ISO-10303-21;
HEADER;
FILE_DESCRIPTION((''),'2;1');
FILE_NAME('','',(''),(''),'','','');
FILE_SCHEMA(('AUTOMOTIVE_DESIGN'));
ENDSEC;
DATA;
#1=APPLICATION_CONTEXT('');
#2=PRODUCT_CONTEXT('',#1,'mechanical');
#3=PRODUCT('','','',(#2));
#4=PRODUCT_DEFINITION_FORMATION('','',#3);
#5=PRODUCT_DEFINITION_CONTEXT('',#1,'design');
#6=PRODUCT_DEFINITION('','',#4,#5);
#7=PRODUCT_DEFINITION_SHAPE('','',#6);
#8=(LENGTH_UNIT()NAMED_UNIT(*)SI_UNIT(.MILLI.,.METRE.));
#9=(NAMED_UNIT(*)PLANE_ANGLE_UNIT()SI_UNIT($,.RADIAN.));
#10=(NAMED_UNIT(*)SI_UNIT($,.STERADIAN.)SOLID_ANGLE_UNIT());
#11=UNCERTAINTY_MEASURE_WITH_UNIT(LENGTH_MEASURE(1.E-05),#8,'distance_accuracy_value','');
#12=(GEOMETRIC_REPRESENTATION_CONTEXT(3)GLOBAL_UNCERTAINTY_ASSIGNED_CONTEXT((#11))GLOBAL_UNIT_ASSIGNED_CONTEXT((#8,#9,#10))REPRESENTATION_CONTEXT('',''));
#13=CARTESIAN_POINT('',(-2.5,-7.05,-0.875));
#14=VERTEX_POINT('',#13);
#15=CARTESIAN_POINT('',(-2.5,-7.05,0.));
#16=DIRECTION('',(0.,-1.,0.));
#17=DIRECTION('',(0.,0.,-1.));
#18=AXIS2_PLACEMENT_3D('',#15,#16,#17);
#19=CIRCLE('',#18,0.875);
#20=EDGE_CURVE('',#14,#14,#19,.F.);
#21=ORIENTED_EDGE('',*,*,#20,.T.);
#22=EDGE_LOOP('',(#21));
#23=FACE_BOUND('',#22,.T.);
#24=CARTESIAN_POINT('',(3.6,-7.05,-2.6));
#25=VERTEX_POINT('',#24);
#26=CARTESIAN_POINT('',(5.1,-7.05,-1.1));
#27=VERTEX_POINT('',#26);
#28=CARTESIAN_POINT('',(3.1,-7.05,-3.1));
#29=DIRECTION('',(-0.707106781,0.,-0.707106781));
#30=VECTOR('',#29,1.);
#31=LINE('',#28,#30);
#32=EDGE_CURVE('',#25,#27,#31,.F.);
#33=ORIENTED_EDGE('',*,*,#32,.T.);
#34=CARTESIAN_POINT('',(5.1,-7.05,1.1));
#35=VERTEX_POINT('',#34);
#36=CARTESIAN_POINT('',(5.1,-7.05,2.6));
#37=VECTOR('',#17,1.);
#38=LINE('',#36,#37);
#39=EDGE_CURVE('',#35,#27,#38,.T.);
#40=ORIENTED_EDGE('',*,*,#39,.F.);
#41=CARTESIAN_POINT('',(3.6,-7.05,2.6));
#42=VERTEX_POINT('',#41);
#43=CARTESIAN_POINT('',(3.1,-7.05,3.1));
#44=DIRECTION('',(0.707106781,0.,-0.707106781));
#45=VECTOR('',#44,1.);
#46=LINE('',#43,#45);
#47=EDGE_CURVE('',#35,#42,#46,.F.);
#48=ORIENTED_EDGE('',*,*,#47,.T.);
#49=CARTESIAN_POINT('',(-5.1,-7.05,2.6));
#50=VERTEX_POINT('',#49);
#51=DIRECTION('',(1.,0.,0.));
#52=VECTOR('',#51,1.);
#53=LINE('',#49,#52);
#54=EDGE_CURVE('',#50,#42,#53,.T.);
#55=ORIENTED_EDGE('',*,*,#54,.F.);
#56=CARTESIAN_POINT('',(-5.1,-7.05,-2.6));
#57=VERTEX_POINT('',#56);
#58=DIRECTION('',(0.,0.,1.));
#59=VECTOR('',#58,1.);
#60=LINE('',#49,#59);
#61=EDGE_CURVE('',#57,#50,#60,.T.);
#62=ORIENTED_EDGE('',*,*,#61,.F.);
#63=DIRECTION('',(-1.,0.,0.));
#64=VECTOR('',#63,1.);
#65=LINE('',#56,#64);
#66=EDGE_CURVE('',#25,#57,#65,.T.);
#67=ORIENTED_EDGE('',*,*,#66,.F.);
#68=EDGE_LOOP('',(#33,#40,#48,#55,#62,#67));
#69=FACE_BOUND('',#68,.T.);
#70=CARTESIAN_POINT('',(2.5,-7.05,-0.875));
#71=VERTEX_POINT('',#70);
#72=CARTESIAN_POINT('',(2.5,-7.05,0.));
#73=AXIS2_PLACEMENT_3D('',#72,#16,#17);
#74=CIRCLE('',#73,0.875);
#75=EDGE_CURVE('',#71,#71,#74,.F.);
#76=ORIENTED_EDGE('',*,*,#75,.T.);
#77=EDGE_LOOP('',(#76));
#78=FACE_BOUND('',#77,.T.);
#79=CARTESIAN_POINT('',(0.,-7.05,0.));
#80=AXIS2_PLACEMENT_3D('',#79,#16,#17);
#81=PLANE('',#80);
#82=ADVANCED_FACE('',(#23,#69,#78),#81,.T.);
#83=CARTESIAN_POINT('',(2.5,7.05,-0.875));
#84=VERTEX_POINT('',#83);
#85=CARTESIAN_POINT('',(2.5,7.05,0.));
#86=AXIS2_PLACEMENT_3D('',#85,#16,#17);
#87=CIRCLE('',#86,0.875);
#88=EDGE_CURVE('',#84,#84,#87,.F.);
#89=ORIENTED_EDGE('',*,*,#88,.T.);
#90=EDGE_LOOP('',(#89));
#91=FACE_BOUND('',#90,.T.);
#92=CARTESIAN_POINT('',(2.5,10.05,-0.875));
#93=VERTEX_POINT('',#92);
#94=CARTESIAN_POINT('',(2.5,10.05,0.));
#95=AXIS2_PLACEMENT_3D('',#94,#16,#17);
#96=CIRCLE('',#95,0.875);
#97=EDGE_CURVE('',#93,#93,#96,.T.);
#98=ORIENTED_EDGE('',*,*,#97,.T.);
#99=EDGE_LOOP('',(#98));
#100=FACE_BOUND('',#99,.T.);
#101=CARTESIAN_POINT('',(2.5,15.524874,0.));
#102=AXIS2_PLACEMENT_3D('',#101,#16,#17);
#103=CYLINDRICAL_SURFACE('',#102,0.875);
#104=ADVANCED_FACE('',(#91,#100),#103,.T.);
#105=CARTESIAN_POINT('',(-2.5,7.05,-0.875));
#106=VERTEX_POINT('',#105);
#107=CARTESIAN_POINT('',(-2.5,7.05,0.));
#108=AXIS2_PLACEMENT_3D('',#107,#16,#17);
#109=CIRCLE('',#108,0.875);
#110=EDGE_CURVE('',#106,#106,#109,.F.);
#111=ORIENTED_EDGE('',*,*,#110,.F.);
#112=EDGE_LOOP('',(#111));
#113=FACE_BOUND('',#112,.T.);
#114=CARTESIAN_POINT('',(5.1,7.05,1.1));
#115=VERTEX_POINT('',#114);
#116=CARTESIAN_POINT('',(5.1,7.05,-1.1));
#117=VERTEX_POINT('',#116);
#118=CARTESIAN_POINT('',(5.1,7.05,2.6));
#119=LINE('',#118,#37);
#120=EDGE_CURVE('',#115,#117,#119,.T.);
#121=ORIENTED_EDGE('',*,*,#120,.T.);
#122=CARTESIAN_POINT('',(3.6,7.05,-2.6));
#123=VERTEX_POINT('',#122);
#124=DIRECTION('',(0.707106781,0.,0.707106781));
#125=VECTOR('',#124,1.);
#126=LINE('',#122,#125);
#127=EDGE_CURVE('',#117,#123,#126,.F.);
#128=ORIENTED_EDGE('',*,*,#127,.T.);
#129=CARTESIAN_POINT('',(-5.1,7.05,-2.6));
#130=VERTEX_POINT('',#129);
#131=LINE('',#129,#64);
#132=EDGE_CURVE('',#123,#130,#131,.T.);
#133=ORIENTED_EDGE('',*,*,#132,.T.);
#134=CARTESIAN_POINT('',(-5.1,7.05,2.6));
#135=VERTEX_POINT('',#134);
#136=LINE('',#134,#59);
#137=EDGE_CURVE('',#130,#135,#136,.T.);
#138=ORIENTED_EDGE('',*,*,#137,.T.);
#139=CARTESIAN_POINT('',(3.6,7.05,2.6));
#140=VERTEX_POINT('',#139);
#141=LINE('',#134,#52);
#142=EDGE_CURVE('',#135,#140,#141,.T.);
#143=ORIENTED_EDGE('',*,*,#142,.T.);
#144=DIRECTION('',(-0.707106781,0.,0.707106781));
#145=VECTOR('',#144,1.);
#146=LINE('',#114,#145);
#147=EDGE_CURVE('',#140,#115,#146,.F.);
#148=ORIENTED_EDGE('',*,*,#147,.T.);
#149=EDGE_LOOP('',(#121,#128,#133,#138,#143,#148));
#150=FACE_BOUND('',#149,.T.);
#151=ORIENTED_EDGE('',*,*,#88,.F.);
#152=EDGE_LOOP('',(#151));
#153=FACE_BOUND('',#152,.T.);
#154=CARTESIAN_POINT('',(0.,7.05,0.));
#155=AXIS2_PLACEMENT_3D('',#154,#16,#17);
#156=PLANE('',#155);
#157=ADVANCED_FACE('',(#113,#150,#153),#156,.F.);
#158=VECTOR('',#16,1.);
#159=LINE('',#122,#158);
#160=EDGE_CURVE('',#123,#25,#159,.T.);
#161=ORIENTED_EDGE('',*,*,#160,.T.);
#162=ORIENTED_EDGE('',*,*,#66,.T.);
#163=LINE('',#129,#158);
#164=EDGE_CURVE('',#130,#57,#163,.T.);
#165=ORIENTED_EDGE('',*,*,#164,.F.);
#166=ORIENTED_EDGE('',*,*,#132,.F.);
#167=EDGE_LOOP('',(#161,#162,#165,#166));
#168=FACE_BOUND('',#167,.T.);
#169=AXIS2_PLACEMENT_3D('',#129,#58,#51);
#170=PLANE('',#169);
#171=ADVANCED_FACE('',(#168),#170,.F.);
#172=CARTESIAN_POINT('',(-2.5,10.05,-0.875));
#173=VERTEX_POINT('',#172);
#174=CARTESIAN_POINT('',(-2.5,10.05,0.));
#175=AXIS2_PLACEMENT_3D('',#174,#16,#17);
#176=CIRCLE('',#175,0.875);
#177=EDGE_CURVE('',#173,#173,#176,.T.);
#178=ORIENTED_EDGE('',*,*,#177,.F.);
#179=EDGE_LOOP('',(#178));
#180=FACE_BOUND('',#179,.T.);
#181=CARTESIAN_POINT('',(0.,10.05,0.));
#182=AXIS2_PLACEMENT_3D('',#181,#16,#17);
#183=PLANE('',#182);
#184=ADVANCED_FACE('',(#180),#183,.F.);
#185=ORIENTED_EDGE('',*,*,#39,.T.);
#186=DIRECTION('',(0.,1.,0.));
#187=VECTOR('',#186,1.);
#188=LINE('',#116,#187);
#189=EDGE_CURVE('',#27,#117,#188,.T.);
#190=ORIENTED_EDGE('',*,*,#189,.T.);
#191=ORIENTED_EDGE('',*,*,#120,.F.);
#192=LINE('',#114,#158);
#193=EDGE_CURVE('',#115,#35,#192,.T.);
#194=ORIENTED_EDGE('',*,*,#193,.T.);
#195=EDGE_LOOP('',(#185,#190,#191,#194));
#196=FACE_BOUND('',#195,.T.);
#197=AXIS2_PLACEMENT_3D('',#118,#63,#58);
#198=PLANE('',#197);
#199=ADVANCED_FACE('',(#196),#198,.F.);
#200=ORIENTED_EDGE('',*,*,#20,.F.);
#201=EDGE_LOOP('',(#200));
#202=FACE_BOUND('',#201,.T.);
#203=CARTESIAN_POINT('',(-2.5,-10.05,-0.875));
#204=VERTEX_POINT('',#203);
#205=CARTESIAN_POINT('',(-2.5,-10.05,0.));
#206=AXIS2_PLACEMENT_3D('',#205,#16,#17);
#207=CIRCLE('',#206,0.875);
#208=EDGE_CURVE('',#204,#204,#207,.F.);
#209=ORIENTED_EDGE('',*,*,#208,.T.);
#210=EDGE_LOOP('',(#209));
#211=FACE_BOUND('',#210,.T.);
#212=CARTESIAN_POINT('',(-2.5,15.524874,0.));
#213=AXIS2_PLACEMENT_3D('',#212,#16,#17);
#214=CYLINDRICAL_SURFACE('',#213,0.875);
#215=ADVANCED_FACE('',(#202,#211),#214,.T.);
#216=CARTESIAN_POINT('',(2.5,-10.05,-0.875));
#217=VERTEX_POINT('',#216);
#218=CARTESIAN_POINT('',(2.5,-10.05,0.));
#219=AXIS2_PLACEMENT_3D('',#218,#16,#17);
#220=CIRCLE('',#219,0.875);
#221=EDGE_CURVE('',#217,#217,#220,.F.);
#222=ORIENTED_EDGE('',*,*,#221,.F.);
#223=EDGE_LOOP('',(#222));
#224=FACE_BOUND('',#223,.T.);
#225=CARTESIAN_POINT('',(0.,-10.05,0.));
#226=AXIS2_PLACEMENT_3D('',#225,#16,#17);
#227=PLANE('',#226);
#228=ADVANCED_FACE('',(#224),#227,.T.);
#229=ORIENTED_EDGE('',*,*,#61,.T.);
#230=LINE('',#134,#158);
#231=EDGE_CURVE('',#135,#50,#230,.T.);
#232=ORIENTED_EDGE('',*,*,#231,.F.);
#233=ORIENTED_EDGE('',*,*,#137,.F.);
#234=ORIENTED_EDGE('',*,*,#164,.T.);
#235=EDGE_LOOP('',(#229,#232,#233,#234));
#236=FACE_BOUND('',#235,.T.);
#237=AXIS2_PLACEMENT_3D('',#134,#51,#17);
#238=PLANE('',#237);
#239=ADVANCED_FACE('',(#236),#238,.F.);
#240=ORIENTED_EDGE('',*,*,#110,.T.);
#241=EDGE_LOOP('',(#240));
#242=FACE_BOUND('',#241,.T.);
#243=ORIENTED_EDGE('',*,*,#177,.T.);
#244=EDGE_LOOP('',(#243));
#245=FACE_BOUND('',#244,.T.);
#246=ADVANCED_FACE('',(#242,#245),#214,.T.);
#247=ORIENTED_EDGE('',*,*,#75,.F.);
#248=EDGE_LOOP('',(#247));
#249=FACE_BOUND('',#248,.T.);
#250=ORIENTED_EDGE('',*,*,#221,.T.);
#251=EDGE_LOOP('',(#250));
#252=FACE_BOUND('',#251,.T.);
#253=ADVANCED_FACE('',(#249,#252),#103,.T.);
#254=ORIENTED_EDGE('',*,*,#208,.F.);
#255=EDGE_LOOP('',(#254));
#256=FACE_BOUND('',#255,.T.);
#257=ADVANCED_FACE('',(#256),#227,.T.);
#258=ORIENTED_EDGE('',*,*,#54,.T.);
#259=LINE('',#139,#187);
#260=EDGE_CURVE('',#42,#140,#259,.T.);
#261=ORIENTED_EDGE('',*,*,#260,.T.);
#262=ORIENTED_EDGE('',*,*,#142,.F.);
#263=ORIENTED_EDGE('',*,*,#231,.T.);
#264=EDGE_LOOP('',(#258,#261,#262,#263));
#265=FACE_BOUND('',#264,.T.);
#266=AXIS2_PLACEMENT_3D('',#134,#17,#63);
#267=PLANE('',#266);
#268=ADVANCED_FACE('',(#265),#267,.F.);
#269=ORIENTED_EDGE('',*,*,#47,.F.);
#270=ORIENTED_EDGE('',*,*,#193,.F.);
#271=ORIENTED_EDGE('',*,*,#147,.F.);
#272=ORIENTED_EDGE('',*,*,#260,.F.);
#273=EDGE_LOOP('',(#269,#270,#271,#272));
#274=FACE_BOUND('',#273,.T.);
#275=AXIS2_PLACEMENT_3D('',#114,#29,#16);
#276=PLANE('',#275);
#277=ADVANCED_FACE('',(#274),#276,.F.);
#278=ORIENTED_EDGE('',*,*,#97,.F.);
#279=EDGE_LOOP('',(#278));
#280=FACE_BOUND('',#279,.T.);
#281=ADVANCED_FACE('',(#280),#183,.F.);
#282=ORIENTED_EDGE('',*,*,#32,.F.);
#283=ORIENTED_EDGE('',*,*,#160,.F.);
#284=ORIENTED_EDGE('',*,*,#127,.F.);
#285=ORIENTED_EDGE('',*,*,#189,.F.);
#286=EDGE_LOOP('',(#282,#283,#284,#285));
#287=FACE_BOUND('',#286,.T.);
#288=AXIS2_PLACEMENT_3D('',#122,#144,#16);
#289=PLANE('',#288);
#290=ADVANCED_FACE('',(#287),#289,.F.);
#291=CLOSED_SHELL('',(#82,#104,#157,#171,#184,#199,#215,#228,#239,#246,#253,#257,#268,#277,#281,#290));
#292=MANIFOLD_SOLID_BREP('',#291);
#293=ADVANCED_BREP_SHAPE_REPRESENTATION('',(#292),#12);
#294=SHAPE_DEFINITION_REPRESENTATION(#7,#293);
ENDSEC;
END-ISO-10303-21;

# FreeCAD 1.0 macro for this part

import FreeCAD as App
import Part
import Sketcher


def edges_at(feature, points):
    """Names of the edges that pass closest to the given points."""
    edges = feature.Shape.Edges
    near = lambda p: min(range(len(edges)), key=lambda i: edges[i].distToShape(Part.Vertex(*p))[0])
    return sorted({f"Edge{near(p) + 1}" for p in points})


def add_polygon(sketch, points):
    """Adds a closed chain of lines whose ends are joined by coincident constraints."""
    first, n = sketch.GeometryCount, len(points)
    for a, b in zip(points, points[1:] + points[:1]):
        sketch.addGeometry(Part.LineSegment(App.Vector(*a, 0), App.Vector(*b, 0)), False)
    for i in range(n):
        sketch.addConstraint(Sketcher.Constraint("Coincident", first + i, 2, first + (i + 1) % n, 1))

doc = App.newDocument("Part")
body = doc.addObject("PartDesign::Body", "Body")

# Sketch on XZ plane
sketch1 = doc.addObject("Sketcher::SketchObject", "Sketch")
body.addObject(sketch1)
sketch1.AttachmentSupport = (doc.XZ_Plane, [""])
sketch1.MapMode = "FlatFace"
add_polygon(sketch1, [(-5, -3), (-5, 3), (5, 3), (5, -3)])  # lines 0-3
sketch1.addConstraint(Sketcher.Constraint("Vertical", 0))
sketch1.addConstraint(Sketcher.Constraint("Horizontal", 1))
sketch1.addConstraint(Sketcher.Constraint("Vertical", 2))
sketch1.addConstraint(Sketcher.Constraint("Horizontal", 3))
sketch1.addConstraint(Sketcher.Constraint("Symmetric", 0, 2, 2, 2, -1, 1))
sketch1.addConstraint(Sketcher.Constraint("DistanceX", 1, 1, 1, 2, 10.2))
sketch1.addConstraint(Sketcher.Constraint("DistanceY", 0, 1, 0, 2, 5.2))
pad1 = doc.addObject("PartDesign::Pad", "Pad")
body.addObject(pad1)
pad1.Profile = sketch1
pad1.Length = 14.1
pad1.Midplane = True
doc.recompute()

chamfer = doc.addObject("PartDesign::Chamfer", "Chamfer")
body.addObject(chamfer)
chamfer.Base = (pad1, edges_at(pad1, [(5.1, 0, 2.6), (5.1, 0, -2.6)]))
chamfer.Size = 1.5

# Sketch on XZ plane
sketch2 = doc.addObject("Sketcher::SketchObject", "Sketch001")
body.addObject(sketch2)
sketch2.AttachmentSupport = (doc.XZ_Plane, [""])
sketch2.MapMode = "FlatFace"
sketch2.addGeometry(Part.Circle(App.Vector(-2.5, 0, 0), App.Vector(0, 0, 1), 0.9), False)
sketch2.addGeometry(Part.Circle(App.Vector(2.5, 0, 0), App.Vector(0, 0, 1), 0.9), False)
sketch2.addConstraint(Sketcher.Constraint("Equal", 0, 1))
sketch2.addConstraint(Sketcher.Constraint("Symmetric", 0, 3, 1, 3, -1, 1))
sketch2.addConstraint(Sketcher.Constraint("PointOnObject", 0, 3, -1))
sketch2.addConstraint(Sketcher.Constraint("Diameter", 0, 1.75))
sketch2.addConstraint(Sketcher.Constraint("DistanceX", 0, 3, 1, 3, 5.0))
pad2 = doc.addObject("PartDesign::Pad", "Pad001")
body.addObject(pad2)
pad2.Profile = sketch2
pad2.Type = "TwoLengths"
pad2.Length = 10.05
pad2.Length2 = 10.05
pad2.Reversed = True

doc.recompute()
